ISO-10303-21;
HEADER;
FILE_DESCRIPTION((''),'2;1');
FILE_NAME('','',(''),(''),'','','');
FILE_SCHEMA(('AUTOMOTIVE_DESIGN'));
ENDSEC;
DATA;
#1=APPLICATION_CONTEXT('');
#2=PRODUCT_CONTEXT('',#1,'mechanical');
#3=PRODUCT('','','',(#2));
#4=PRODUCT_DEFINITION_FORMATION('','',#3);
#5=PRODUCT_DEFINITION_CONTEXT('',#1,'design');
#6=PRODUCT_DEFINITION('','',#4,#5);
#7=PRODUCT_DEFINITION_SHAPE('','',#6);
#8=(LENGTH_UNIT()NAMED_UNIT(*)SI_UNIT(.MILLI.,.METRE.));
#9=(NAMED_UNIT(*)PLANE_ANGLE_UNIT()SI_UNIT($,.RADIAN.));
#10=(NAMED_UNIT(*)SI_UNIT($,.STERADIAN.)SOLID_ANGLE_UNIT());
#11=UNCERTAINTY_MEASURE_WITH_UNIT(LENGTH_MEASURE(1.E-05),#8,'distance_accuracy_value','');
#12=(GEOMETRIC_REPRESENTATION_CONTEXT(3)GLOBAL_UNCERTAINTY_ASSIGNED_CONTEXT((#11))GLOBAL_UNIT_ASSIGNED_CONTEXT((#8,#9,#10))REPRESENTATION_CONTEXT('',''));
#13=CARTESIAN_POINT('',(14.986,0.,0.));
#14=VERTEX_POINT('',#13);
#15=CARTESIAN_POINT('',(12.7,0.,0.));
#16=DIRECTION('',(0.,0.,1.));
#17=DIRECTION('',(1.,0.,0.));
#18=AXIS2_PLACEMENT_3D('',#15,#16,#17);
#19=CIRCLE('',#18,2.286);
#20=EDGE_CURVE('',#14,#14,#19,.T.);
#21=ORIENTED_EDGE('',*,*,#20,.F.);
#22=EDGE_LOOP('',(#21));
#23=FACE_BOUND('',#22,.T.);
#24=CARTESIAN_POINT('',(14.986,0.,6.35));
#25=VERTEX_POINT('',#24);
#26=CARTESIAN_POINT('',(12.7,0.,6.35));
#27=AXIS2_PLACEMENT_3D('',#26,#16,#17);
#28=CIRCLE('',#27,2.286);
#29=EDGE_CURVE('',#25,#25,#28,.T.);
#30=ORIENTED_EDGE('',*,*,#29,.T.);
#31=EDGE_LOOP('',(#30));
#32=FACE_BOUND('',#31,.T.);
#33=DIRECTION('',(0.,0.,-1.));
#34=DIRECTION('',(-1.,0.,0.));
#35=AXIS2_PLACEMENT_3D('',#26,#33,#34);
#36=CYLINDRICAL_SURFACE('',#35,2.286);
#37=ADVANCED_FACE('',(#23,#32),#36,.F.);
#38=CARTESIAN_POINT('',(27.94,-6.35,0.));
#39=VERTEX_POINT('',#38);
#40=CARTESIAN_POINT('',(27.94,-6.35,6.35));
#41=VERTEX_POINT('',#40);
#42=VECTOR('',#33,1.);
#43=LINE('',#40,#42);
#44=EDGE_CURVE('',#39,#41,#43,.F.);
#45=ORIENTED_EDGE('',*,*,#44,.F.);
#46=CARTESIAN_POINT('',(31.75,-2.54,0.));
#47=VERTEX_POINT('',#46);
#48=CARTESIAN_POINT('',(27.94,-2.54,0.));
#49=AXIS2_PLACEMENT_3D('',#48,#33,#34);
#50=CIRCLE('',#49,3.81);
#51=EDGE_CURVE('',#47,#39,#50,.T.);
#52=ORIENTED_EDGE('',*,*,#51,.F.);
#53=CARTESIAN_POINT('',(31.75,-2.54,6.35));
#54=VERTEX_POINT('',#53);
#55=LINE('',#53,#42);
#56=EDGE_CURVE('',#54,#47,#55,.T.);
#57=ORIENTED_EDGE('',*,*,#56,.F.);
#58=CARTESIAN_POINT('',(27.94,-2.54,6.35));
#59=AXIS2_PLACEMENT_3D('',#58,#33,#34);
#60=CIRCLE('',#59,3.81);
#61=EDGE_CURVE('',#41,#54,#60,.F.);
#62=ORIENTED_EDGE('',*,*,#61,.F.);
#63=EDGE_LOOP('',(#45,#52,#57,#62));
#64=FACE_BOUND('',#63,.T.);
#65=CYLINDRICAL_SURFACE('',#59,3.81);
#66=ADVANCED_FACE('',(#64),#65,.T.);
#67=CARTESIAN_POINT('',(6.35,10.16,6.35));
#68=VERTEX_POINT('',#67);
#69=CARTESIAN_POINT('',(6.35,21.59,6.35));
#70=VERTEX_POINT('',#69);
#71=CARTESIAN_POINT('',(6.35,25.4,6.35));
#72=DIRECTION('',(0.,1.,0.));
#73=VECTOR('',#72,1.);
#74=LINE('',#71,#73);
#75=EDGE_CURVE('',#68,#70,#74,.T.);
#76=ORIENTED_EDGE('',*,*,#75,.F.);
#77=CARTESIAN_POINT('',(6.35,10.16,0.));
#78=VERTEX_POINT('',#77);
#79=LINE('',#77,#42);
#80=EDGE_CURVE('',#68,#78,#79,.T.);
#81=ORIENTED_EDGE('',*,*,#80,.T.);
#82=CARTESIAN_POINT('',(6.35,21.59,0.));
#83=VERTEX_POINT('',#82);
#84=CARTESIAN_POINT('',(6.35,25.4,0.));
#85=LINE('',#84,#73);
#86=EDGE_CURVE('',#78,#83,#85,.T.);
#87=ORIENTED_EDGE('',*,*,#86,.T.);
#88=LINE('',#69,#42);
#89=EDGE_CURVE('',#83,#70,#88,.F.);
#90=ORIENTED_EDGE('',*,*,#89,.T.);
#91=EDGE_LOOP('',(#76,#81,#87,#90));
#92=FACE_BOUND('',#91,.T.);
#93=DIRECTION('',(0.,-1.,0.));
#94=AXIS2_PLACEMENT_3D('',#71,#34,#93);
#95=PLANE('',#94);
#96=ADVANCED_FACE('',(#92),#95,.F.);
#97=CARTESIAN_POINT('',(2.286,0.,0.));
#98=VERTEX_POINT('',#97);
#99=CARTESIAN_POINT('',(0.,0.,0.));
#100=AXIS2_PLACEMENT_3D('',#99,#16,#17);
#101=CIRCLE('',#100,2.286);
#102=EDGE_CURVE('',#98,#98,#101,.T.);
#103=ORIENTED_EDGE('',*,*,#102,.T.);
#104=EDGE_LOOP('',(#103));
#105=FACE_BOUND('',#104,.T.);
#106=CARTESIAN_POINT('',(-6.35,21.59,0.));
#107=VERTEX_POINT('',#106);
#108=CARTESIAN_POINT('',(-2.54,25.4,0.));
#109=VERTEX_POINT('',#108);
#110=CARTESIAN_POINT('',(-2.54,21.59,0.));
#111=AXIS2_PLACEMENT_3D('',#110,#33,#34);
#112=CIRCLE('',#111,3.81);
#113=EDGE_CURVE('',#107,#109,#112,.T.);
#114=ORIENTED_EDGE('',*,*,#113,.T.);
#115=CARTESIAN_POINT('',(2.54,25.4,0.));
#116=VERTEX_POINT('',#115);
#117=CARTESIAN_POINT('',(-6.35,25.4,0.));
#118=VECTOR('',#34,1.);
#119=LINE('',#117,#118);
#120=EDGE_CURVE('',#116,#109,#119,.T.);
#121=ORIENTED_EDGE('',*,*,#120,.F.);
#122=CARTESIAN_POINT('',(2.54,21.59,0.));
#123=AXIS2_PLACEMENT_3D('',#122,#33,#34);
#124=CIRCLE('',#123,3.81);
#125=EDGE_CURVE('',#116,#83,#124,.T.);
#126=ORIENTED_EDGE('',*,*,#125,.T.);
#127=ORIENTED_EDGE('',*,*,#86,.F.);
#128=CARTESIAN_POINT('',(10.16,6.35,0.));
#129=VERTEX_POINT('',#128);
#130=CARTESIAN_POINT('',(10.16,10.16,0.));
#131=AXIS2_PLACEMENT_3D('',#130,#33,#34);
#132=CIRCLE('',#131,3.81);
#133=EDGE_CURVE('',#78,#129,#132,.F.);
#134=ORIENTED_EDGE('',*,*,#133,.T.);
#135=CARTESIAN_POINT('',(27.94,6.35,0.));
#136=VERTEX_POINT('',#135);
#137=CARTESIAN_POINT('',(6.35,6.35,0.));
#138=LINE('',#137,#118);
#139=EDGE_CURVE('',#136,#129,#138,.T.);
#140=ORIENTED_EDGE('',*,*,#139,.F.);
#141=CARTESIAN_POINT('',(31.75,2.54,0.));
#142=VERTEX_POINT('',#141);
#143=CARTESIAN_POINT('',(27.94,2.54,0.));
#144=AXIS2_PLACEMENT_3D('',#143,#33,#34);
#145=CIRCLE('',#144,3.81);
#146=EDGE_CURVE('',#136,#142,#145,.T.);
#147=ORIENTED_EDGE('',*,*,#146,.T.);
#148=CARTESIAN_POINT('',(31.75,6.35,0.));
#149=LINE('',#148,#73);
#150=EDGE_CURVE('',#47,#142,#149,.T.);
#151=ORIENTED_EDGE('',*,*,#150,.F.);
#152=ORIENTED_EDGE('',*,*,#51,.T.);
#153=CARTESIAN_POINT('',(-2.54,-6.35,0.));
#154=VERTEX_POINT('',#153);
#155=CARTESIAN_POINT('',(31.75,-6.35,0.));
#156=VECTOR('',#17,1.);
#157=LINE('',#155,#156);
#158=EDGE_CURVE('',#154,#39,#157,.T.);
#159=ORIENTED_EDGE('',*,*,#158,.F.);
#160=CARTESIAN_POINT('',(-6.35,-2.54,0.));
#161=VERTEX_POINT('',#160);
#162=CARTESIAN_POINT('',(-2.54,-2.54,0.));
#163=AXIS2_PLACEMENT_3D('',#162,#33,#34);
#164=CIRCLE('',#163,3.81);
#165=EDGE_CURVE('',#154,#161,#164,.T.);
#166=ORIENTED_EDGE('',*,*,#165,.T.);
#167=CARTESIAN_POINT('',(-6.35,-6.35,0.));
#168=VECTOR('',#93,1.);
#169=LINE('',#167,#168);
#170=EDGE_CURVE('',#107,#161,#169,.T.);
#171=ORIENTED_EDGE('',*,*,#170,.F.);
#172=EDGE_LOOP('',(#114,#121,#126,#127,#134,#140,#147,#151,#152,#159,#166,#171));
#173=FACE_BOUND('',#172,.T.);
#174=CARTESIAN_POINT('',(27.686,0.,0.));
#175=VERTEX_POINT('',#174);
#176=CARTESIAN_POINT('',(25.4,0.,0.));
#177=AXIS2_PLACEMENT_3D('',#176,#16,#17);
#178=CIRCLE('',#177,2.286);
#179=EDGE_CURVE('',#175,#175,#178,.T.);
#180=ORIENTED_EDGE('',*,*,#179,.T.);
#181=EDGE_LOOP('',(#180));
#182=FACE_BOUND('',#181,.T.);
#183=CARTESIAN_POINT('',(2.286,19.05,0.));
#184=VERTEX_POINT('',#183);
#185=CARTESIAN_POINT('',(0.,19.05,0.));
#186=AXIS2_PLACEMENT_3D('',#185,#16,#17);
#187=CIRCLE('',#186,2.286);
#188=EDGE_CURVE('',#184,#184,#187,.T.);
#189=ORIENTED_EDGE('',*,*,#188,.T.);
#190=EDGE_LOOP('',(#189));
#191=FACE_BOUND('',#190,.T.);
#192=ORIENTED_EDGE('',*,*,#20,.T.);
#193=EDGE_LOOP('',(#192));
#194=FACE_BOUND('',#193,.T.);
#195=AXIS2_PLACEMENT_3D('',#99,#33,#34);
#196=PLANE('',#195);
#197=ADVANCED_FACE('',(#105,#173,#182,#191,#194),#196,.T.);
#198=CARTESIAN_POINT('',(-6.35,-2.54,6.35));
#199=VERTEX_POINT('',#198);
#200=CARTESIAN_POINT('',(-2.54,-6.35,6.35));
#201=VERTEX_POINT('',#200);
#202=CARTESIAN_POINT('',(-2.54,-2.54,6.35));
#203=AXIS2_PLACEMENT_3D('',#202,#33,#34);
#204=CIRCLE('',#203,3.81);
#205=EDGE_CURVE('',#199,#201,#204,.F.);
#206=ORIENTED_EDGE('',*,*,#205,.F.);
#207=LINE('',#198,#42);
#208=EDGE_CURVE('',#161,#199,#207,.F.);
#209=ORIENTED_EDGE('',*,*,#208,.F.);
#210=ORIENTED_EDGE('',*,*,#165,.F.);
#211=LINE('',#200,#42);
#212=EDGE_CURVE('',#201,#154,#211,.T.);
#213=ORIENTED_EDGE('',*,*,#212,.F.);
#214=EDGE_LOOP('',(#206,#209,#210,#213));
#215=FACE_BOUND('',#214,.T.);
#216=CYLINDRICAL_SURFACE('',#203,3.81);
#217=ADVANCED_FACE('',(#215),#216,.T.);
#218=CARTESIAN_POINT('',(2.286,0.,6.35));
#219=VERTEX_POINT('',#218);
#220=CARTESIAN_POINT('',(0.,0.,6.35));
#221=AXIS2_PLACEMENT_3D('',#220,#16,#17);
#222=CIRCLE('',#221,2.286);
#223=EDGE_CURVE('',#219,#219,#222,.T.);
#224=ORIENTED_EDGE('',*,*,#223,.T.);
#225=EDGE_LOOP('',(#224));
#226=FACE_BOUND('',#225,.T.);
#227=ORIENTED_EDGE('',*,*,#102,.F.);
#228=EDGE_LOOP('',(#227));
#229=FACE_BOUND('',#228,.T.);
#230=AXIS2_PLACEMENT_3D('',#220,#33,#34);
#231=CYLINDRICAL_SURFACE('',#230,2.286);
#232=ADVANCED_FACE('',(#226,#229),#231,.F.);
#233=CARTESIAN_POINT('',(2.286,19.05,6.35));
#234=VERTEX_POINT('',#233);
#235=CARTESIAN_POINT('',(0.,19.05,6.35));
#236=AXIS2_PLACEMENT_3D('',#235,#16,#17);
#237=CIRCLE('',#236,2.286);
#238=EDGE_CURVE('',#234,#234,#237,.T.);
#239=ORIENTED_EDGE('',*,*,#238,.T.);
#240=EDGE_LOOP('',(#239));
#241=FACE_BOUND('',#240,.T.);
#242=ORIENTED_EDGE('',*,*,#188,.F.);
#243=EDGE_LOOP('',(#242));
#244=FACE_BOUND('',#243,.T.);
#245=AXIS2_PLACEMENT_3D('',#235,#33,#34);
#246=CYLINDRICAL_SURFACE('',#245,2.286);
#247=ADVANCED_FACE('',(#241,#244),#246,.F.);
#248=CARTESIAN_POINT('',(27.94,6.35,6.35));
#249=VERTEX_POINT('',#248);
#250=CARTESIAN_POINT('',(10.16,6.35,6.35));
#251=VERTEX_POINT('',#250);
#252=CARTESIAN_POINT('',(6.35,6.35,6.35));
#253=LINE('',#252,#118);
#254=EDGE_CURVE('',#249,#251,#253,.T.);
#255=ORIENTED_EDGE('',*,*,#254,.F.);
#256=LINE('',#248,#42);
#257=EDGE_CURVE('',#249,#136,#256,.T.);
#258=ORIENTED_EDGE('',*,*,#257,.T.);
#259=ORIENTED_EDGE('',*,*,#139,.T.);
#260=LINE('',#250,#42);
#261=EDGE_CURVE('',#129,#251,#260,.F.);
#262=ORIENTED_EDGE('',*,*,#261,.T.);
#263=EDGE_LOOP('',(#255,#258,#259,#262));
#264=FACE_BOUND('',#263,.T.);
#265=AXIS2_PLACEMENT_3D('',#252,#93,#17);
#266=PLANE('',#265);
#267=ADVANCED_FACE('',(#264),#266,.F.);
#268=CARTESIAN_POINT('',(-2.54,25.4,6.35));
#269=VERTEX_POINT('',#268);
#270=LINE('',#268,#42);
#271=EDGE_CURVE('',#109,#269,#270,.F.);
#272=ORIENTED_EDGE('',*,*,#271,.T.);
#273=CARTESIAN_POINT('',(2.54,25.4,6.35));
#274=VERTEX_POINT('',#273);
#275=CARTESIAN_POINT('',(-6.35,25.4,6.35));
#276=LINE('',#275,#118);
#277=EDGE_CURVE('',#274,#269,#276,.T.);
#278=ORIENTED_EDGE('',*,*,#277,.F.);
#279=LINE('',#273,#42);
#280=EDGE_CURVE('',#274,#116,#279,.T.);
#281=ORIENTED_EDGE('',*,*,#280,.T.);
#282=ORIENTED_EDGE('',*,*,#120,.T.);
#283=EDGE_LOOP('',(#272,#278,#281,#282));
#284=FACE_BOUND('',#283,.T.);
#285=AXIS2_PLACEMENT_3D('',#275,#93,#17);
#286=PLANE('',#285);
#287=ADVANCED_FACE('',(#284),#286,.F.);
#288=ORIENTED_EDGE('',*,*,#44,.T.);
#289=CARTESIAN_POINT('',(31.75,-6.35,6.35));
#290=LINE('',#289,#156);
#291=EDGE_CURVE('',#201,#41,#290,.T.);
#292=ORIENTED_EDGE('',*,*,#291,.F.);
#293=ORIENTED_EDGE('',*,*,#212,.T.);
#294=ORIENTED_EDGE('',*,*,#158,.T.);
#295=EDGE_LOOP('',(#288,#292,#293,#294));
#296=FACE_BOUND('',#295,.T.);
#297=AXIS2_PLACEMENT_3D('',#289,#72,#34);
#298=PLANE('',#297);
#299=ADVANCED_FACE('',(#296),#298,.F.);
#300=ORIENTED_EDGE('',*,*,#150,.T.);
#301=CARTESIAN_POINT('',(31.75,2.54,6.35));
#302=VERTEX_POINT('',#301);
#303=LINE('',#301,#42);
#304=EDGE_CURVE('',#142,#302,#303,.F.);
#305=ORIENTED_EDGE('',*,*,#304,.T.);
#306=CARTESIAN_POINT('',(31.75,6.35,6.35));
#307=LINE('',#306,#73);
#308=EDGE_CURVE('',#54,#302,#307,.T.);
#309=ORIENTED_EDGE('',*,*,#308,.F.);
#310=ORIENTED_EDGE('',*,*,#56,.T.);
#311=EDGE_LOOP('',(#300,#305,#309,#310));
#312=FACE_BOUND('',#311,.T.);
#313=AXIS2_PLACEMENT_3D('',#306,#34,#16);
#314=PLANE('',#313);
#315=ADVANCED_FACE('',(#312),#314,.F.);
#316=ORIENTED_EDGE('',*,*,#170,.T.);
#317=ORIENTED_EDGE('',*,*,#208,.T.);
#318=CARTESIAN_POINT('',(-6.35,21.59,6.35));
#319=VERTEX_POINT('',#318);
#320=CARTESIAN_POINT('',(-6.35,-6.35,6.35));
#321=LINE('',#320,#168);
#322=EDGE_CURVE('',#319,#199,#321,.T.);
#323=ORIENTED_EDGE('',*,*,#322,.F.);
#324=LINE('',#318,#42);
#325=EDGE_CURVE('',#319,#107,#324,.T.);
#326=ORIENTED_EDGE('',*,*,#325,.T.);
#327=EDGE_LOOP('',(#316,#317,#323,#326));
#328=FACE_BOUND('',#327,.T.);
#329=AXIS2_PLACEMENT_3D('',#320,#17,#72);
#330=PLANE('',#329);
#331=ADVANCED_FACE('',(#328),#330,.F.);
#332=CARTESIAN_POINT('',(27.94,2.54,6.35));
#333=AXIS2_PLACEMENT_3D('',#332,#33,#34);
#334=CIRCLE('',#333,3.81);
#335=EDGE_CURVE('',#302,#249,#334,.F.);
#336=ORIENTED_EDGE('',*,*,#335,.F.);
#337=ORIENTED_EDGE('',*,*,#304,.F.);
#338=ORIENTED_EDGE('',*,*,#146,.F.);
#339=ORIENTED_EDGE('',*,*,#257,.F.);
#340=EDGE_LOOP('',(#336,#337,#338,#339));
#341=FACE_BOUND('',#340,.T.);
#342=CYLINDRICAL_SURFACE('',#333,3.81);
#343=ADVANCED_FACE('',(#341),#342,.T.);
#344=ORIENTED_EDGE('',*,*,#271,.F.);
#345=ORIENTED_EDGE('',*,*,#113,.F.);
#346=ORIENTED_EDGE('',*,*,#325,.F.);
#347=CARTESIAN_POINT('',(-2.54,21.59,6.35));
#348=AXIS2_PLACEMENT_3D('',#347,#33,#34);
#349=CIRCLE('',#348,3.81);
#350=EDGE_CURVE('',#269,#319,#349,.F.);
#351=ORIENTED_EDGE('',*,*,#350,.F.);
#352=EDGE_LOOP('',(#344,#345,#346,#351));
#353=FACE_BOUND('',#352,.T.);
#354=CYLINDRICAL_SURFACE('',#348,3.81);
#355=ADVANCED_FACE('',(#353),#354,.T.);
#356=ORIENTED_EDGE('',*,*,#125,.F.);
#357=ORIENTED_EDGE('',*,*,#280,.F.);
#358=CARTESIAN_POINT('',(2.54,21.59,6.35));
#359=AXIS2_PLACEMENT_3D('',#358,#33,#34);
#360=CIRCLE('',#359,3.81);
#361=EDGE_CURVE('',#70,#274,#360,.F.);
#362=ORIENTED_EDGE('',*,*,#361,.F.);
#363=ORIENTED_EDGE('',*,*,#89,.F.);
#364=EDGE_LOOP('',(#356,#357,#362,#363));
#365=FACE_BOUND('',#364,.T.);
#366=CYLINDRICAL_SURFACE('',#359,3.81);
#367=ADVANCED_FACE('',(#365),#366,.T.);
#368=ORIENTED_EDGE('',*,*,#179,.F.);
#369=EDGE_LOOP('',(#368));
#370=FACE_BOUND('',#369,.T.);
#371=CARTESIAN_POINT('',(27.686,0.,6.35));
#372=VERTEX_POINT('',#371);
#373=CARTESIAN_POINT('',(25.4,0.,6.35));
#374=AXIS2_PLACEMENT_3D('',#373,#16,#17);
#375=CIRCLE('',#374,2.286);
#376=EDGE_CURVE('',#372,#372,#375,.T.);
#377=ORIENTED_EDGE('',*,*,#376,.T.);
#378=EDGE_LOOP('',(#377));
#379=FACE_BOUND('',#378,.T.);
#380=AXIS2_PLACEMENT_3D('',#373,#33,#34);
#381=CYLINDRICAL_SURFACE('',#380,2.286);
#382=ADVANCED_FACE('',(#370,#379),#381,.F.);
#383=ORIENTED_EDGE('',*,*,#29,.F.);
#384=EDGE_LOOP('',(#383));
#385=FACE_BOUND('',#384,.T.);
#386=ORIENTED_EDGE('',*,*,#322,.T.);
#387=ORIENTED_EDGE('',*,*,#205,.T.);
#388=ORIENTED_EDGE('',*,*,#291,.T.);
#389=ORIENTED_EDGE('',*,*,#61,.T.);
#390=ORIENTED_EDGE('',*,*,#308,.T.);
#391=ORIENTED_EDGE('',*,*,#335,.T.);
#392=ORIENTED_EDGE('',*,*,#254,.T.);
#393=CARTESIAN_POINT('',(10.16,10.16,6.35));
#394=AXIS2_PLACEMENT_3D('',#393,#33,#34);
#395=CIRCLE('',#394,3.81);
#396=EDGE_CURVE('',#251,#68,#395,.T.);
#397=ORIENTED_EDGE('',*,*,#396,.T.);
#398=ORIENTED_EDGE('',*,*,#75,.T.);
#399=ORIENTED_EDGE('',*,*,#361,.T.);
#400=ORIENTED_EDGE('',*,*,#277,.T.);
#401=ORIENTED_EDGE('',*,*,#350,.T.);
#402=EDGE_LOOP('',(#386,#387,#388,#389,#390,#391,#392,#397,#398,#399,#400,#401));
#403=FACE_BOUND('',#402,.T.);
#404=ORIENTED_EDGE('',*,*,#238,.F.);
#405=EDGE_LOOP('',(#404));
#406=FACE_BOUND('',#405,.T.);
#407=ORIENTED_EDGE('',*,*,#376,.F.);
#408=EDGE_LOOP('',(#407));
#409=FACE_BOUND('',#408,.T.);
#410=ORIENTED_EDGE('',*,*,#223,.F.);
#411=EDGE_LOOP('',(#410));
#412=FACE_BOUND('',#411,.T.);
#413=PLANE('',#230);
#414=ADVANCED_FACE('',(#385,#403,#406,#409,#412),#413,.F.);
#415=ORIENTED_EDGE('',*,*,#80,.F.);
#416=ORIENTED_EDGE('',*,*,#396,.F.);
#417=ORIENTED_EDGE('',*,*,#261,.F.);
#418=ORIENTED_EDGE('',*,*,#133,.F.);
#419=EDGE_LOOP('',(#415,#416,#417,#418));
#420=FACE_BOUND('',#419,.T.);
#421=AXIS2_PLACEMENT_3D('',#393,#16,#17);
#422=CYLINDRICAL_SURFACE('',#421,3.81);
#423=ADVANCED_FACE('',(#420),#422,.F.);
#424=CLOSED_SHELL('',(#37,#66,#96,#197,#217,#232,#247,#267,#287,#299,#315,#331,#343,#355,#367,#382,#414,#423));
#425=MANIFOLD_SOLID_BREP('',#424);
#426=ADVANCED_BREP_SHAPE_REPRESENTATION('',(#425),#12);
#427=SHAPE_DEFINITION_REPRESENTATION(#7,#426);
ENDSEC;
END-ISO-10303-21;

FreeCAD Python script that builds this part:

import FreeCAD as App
import Part
import Sketcher
Q = App.Units.Quantity


def edges_at(feature, points):
    """Names of the edges that pass closest to the given points."""
    edges = feature.Shape.Edges
    near = lambda p: min(range(len(edges)), key=lambda i: edges[i].distToShape(Part.Vertex(*p))[0])
    return sorted({f"Edge{near(p) + 1}" for p in points})

doc = App.newDocument("Part")
params = doc.addObject("Spreadsheet::Sheet", "Params")
for row, (alias, value) in enumerate([
    ("sketch1_diameter", "0.18 in"),
    ("sketch1_width", "1 in"),
    ("sketch1_width2", "1.5 in"),
    ("pad1_length", "0.25 in"),
    ("fillet_radius", "0.15 in"),
], start=1):
    params.set(f"A{row}", alias)
    params.set(f"B{row}", "=" + value)
    params.setAlias(f"B{row}", alias)

body = doc.addObject("PartDesign::Body", "Body")

# Sketch on XY plane
sketch1 = doc.addObject("Sketcher::SketchObject", "Sketch")
body.addObject(sketch1)
sketch1.AttachmentSupport = (doc.XY_Plane, [""])
sketch1.MapMode = "FlatFace"
sketch1.addGeometry(Part.LineSegment(App.Vector(-6.3, 25.4, 0), App.Vector(-6.3, -6.3, 0)), False)
sketch1.addGeometry(Part.LineSegment(App.Vector(-6.3, -6.3, 0), App.Vector(31.8, -6.3, 0)), False)
sketch1.addGeometry(Part.LineSegment(App.Vector(31.8, -6.3, 0), App.Vector(31.8, 6.3, 0)), False)
sketch1.addGeometry(Part.LineSegment(App.Vector(31.8, 6.3, 0), App.Vector(6.3, 6.3, 0)), False)
sketch1.addGeometry(Part.LineSegment(App.Vector(6.3, 6.3, 0), App.Vector(6.3, 25.4, 0)), False)
sketch1.addGeometry(Part.LineSegment(App.Vector(6.3, 25.4, 0), App.Vector(-6.3, 25.4, 0)), False)
sketch1.addGeometry(Part.Circle(App.Vector(25.4, 0, 0), App.Vector(0, 0, 1), 2.3), False)
sketch1.addGeometry(Part.Circle(App.Vector(12.7, 0, 0), App.Vector(0, 0, 1), 2.3), False)
sketch1.addGeometry(Part.Circle(App.Vector(0, 0, 0), App.Vector(0, 0, 1), 2.3), False)
sketch1.addGeometry(Part.Circle(App.Vector(0, 19.1, 0), App.Vector(0, 0, 1), 2.3), False)
sketch1.addConstraint(Sketcher.Constraint("Coincident", 0, 2, 1, 1))
sketch1.addConstraint(Sketcher.Constraint("Coincident", 1, 2, 2, 1))
sketch1.addConstraint(Sketcher.Constraint("Coincident", 2, 2, 3, 1))
sketch1.addConstraint(Sketcher.Constraint("Coincident", 3, 2, 4, 1))
sketch1.addConstraint(Sketcher.Constraint("Coincident", 4, 2, 5, 1))
sketch1.addConstraint(Sketcher.Constraint("Coincident", 5, 2, 0, 1))
sketch1.addConstraint(Sketcher.Constraint("Vertical", 0))
sketch1.addConstraint(Sketcher.Constraint("Horizontal", 1))
sketch1.addConstraint(Sketcher.Constraint("Vertical", 2))
sketch1.addConstraint(Sketcher.Constraint("Horizontal", 3))
sketch1.addConstraint(Sketcher.Constraint("Vertical", 4))
sketch1.addConstraint(Sketcher.Constraint("Horizontal", 5))
sketch1.addConstraint(Sketcher.Constraint("Coincident", 8, 3, -1, 1))
sketch1.addConstraint(Sketcher.Constraint("Equal", 6, 7))
sketch1.addConstraint(Sketcher.Constraint("Equal", 7, 8))
sketch1.addConstraint(Sketcher.Constraint("Equal", 8, 9))
sketch1.addConstraint(Sketcher.Constraint("Symmetric", 0, 2, 3, 2, -1, 1))
sketch1.addConstraint(Sketcher.Constraint("PointOnObject", 6, 3, -1))
sketch1.addConstraint(Sketcher.Constraint("PointOnObject", 7, 3, -1))
sketch1.addConstraint(Sketcher.Constraint("PointOnObject", 9, 3, -2))
sketch1.addConstraint(Sketcher.Constraint("Equal", 5, 2))
sketch1.addConstraint(Sketcher.Constraint("Diameter", 6, Q("0.18 in")))
sketch1.addConstraint(Sketcher.Constraint("DistanceX", 3, 2, 3, 1, Q("1 in")))
sketch1.addConstraint(Sketcher.Constraint("DistanceX", 1, 1, 1, 2, Q("1.5 in")))
sketch1.addConstraint(Sketcher.Constraint("DistanceX", -1, 1, 6, 3, Q("1 in")))
sketch1.addConstraint(Sketcher.Constraint("DistanceY", -1, 1, 4, 2, Q("1 in")))
sketch1.addConstraint(Sketcher.Constraint("DistanceY", 0, 2, 9, 3, Q("1 in")))
sketch1.addConstraint(Sketcher.Constraint("DistanceX", -1, 1, 7, 3, Q("0.5 in")))
sketch1.setExpression("Constraints[21]", "Params.sketch1_diameter")
sketch1.setExpression("Constraints[22]", "Params.sketch1_width")
sketch1.setExpression("Constraints[23]", "Params.sketch1_width2")
pad1 = doc.addObject("PartDesign::Pad", "Pad")
body.addObject(pad1)
pad1.Profile = sketch1
pad1.setExpression("Length", "Params.pad1_length")
doc.recompute()

fillet = doc.addObject("PartDesign::Fillet", "Fillet")
body.addObject(fillet)
fillet.Base = (pad1, edges_at(pad1, [
    (-6.35, -6.35, 3.175),
    (-6.35, 25.4, 3.175),
    (6.35, 25.4, 3.175),
    (6.35, 6.35, 3.175),
    (31.75, 6.35, 3.175),
    (31.75, -6.35, 3.175),
]))
fillet.setExpression("Radius", "Params.fillet_radius")

doc.recompute()
